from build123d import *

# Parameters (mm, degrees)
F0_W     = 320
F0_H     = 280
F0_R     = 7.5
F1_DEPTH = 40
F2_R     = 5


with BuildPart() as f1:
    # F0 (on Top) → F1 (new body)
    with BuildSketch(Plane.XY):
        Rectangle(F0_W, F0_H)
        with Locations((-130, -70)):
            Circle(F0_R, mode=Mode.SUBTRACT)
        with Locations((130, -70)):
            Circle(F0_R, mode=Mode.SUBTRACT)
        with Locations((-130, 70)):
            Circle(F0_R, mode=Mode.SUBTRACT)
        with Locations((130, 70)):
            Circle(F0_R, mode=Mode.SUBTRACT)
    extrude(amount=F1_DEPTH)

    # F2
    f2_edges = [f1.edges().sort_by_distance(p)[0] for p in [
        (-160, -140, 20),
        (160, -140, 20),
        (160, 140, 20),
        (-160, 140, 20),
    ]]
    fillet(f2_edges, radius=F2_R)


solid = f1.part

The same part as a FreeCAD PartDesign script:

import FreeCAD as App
import Part
import Sketcher
from FreeCAD import Vector
Q = App.Units.Quantity


def edges_at(feature, points):
    """Names of the edges that pass closest to the given points."""
    edges = feature.Shape.Edges
    near = lambda p: min(range(len(edges)), key=lambda i: edges[i].distToShape(Part.Vertex(*p))[0])
    return sorted({f"Edge{near(p) + 1}" for p in points})

doc = App.newDocument("Part")
body = doc.addObject("PartDesign::Body", "Body")

sketch1 = body.newObject("Sketcher::SketchObject", "Sketch")
sketch1.AttachmentSupport = (doc.getObject("XY_Plane"), [""])
sketch1.MapMode = "FlatFace"
sketch1.addGeometry([
    Part.LineSegment(Vector(-160, 140, 0), Vector(-160, -140, 0)),
    Part.LineSegment(Vector(-160, -140, 0), Vector(160, -140, 0)),
    Part.LineSegment(Vector(160, -140, 0), Vector(160, 140, 0)),
    Part.LineSegment(Vector(160, 140, 0), Vector(-160, 140, 0)),
    Part.Circle(Vector(-130, -70, 0), Vector(0, 0, 1), 8),
    Part.Circle(Vector(130, -70, 0), Vector(0, 0, 1), 8),
    Part.Circle(Vector(-130, 70, 0), Vector(0, 0, 1), 8),
    Part.Circle(Vector(130, 70, 0), Vector(0, 0, 1), 8),
], False)
sketch1.addConstraint([
    Sketcher.Constraint("Coincident", 0, 2, 1, 1),
    Sketcher.Constraint("Coincident", 1, 2, 2, 1),
    Sketcher.Constraint("Coincident", 2, 2, 3, 1),
    Sketcher.Constraint("Coincident", 3, 2, 0, 1),
    Sketcher.Constraint("Vertical", 0),
    Sketcher.Constraint("Horizontal", 1),
    Sketcher.Constraint("Vertical", 2),
    Sketcher.Constraint("Horizontal", 3),
    Sketcher.Constraint("Equal", 4, 5),
    Sketcher.Constraint("Equal", 5, 6),
    Sketcher.Constraint("Equal", 6, 7),
    Sketcher.Constraint("Symmetric", 5, 3, 6, 3, -1, 1),
    Sketcher.Constraint("Symmetric", 4, 3, 7, 3, -1, 1),
    Sketcher.Constraint("Symmetric", 0, 2, 2, 2, -1, 1),
    Sketcher.Constraint("Symmetric", 4, 3, 5, 3, -2),
    Sketcher.Constraint("Diameter", 4, Q("15 mm")),
    Sketcher.Constraint("DistanceX", 1, 1, 1, 2, Q("320 mm")),
    Sketcher.Constraint("DistanceY", 0, 2, 0, 1, Q("280 mm")),
    Sketcher.Constraint("DistanceX", 4, 3, -1, 1, Q("130 mm")),
    Sketcher.Constraint("DistanceY", 4, 3, -1, 1, Q("70 mm")),
])
pad1 = body.newObject("PartDesign::Pad", "Pad")
pad1.Profile = sketch1
pad1.Length = 40
doc.recompute()

fillet = body.newObject("PartDesign::Fillet", "Fillet")
fillet.Base = (pad1, edges_at(pad1, [
    (-160, -140, 20),
    (160, -140, 20),
    (160, 140, 20),
    (-160, 140, 20),
]))
fillet.Radius = 5

doc.recompute()
